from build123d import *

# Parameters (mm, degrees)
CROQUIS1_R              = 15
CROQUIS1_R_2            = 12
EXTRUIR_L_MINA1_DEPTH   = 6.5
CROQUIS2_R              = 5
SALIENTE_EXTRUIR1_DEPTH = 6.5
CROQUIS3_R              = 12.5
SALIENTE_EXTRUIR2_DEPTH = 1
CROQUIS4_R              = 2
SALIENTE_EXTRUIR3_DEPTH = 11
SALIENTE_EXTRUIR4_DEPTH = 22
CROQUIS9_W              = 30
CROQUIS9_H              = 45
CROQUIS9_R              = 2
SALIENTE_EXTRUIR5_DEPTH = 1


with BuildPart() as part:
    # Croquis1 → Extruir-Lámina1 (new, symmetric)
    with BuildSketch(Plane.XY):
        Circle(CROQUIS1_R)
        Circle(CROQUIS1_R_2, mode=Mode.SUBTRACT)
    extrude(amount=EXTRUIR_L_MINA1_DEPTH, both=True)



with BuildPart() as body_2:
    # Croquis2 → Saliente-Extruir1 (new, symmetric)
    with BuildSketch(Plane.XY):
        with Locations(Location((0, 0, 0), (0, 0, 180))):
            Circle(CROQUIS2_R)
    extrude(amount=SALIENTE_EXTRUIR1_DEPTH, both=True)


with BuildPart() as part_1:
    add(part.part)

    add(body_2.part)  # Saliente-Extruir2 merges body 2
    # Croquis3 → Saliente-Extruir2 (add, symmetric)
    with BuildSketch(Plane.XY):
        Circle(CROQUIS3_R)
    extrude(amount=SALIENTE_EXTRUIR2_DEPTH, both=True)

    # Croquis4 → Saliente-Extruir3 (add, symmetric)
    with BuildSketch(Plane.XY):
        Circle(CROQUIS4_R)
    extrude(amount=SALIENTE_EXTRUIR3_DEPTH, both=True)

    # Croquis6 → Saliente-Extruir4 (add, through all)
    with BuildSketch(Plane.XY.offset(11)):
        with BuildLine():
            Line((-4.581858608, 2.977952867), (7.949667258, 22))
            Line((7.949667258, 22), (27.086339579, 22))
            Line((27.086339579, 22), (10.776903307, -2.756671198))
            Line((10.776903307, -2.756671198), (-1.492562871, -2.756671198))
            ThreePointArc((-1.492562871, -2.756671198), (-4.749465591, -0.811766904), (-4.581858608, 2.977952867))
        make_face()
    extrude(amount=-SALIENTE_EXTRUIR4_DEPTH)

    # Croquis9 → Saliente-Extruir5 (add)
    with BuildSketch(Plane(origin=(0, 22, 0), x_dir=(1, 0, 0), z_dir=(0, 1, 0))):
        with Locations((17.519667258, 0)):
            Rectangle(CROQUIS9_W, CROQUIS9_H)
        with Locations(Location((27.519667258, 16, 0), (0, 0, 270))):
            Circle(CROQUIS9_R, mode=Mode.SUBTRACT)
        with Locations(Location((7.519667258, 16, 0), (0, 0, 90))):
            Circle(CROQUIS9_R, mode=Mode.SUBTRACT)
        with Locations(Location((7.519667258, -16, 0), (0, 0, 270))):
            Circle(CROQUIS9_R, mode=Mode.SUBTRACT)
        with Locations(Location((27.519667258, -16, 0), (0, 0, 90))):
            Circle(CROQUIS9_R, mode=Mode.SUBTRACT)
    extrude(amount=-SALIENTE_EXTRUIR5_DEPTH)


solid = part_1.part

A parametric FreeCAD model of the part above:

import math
import FreeCAD as App
import Part
import Sketcher


def add_polygon(sketch, points):
    """Adds a closed chain of lines whose ends are joined by coincident constraints."""
    first, n = sketch.GeometryCount, len(points)
    for a, b in zip(points, points[1:] + points[:1]):
        sketch.addGeometry(Part.LineSegment(App.Vector(*a, 0), App.Vector(*b, 0)), False)
    for i in range(n):
        sketch.addConstraint(Sketcher.Constraint("Coincident", first + i, 2, first + (i + 1) % n, 1))

doc = App.newDocument("Part")
body = doc.addObject("PartDesign::Body", "Body")

# Sketch on XY plane
sketch1 = body.newObject("Sketcher::SketchObject", "Sketch")
sketch1.AttachmentSupport = (doc.getObject("XY_Plane"), [""])
sketch1.MapMode = "FlatFace"
sketch1.addGeometry(Part.Circle(App.Vector(0, 0, 0), App.Vector(0, 0, 1), 15), False)
sketch1.addGeometry(Part.Circle(App.Vector(0, 0, 0), App.Vector(0, 0, 1), 12), False)
sketch1.addConstraint(Sketcher.Constraint("Coincident", 0, 3, -1, 1))
sketch1.addConstraint(Sketcher.Constraint("Coincident", 1, 3, -1, 1))
sketch1.addConstraint(Sketcher.Constraint("Diameter", 0, 30.0))
sketch1.addConstraint(Sketcher.Constraint("Diameter", 1, 24.0))
pad1 = body.newObject("PartDesign::Pad", "Pad")
pad1.Profile = sketch1
pad1.Length = 13
pad1.Midplane = True
body2 = doc.addObject("PartDesign::Body", "Body001")

# Sketch on XY plane
sketch2 = body2.newObject("Sketcher::SketchObject", "Sketch001")
sketch2.AttachmentSupport = (doc.getObject("XY_Plane001"), [""])
sketch2.MapMode = "FlatFace"
sketch2.addGeometry(Part.Circle(App.Vector(0, 0, 0), App.Vector(0, 0, 1), 5), False)
sketch2.addConstraint(Sketcher.Constraint("Coincident", 0, 3, -1, 1))
sketch2.addConstraint(Sketcher.Constraint("Diameter", 0, 10.0))
pad2 = body2.newObject("PartDesign::Pad", "Pad001")
pad2.Profile = sketch2
pad2.Length = 13
pad2.Midplane = True
body.AllowCompound = True
doc.recompute()

boolean = body.newObject("PartDesign::Boolean", "Boolean")
boolean.Type = "Fuse"
boolean.addObjects([body2])

# Sketch on XY plane
sketch3 = body.newObject("Sketcher::SketchObject", "Sketch002")
sketch3.AttachmentSupport = (doc.getObject("XY_Plane"), [""])
sketch3.MapMode = "FlatFace"
sketch3.addGeometry(Part.Circle(App.Vector(0, 0, 0), App.Vector(0, 0, 1), 12.5), False)
sketch3.addConstraint(Sketcher.Constraint("Coincident", 0, 3, -1, 1))
sketch3.addConstraint(Sketcher.Constraint("Diameter", 0, 25.0))
pad3 = body.newObject("PartDesign::Pad", "Pad002")
pad3.Profile = sketch3
pad3.Length = 2
pad3.Midplane = True

# Sketch on XY plane
sketch4 = body.newObject("Sketcher::SketchObject", "Sketch003")
sketch4.AttachmentSupport = (doc.getObject("XY_Plane"), [""])
sketch4.MapMode = "FlatFace"
sketch4.addGeometry(Part.Circle(App.Vector(0, 0, 0), App.Vector(0, 0, 1), 2), False)
sketch4.addConstraint(Sketcher.Constraint("Coincident", 0, 3, -1, 1))
sketch4.addConstraint(Sketcher.Constraint("Diameter", 0, 4.0))
pad4 = body.newObject("PartDesign::Pad", "Pad003")
pad4.Profile = sketch4
pad4.Length = 22
pad4.Midplane = True

# Sketch on XY plane
sketch5 = body.newObject("Sketcher::SketchObject", "Sketch004")
sketch5.AttachmentSupport = (doc.getObject("XY_Plane"), [""])
sketch5.MapMode = "FlatFace"
sketch5.AttachmentOffset = App.Placement(App.Vector(0, 0, 11), App.Rotation())
sketch5.addGeometry(Part.LineSegment(App.Vector(7.949667, 22, 0), App.Vector(-4.581859, 2.977953, 0)), False)
sketch5.addGeometry(Part.ArcOfCircle(Part.Circle(App.Vector(-1.492563, 0.942757, 0), App.Vector(0, 0, 1), 3.699428), math.radians(146.623526), math.radians(270)), False)
sketch5.addGeometry(Part.LineSegment(App.Vector(-1.492563, -2.756671, 0), App.Vector(10.776903, -2.756671, 0)), False)
sketch5.addGeometry(Part.LineSegment(App.Vector(10.776903, -2.756671, 0), App.Vector(27.08634, 22, 0)), False)
sketch5.addGeometry(Part.LineSegment(App.Vector(27.08634, 22, 0), App.Vector(7.949667, 22, 0)), False)
sketch5.addConstraint(Sketcher.Constraint("Tangent", 0, 2, 1, 1))
sketch5.addConstraint(Sketcher.Constraint("Tangent", 1, 2, 2, 1))
sketch5.addConstraint(Sketcher.Constraint("Coincident", 2, 2, 3, 1))
sketch5.addConstraint(Sketcher.Constraint("Coincident", 3, 2, 4, 1))
sketch5.addConstraint(Sketcher.Constraint("Coincident", 4, 2, 0, 1))
sketch5.addConstraint(Sketcher.Constraint("Horizontal", 2))
sketch5.addConstraint(Sketcher.Constraint("Horizontal", 4))
sketch5.addConstraint(Sketcher.Constraint("Parallel", 0, 3))
sketch5.addConstraint(Sketcher.Constraint("DistanceY", -1, 1, 3, 2, 22.0))
sketch5.addConstraint(Sketcher.Constraint("Radius", 1, 3.699428))
sketch5.addConstraint(Sketcher.Constraint("DistanceX", 0, 2, 3, 2, 31.668198))
sketch5.addConstraint(Sketcher.Constraint("Distance", 0, 22.778881))
sketch5.addConstraint(Sketcher.Constraint("DistanceX", 2, 1, 2, 2, 12.269466))
sketch5.addConstraint(Sketcher.Constraint("DistanceX", 0, 2, -1, 1, 4.581859))
pad5 = body.newObject("PartDesign::Pad", "Pad004")
pad5.Profile = sketch5
pad5.Length = 22
pad5.Reversed = True

# Sketch on XZ plane
sketch6 = body.newObject("Sketcher::SketchObject", "Sketch005")
sketch6.AttachmentSupport = (doc.getObject("XZ_Plane"), [""])
sketch6.MapMode = "FlatFace"
sketch6.AttachmentOffset = App.Placement(App.Vector(0, 0, -22), App.Rotation())
add_polygon(sketch6, [(2.519667, -22.5), (2.519667, 22.5), (32.519667, 22.5), (32.519667, -22.5)])  # lines 0-3
sketch6.addGeometry(Part.Circle(App.Vector(7.519667, 16, 0), App.Vector(0, 0, 1), 2), False)  # 4
sketch6.addGeometry(Part.Circle(App.Vector(27.519667, 16, 0), App.Vector(0, 0, 1), 2), False)  # 5
sketch6.addGeometry(Part.Circle(App.Vector(7.519667, -16, 0), App.Vector(0, 0, 1), 2), False)  # 6
sketch6.addGeometry(Part.Circle(App.Vector(27.519667, -16, 0), App.Vector(0, 0, 1), 2), False)  # 7
sketch6.addConstraint(Sketcher.Constraint("Vertical", 0))
sketch6.addConstraint(Sketcher.Constraint("Horizontal", 1))
sketch6.addConstraint(Sketcher.Constraint("Vertical", 2))
sketch6.addConstraint(Sketcher.Constraint("Horizontal", 3))
sketch6.addConstraint(Sketcher.Constraint("Equal", 4, 5))
sketch6.addConstraint(Sketcher.Constraint("Equal", 5, 6))
sketch6.addConstraint(Sketcher.Constraint("Equal", 6, 7))
sketch6.addConstraint(Sketcher.Constraint("Symmetric", 4, 3, 6, 3, -1))
sketch6.addConstraint(Sketcher.Constraint("Symmetric", 5, 3, 7, 3, -1))
sketch6.addConstraint(Sketcher.Constraint("Horizontal", 4, 3, 5, 3))
sketch6.addConstraint(Sketcher.Constraint("Diameter", 4, 4.0))
sketch6.addConstraint(Sketcher.Constraint("DistanceX", 1, 1, 1, 2, 30.0))
sketch6.addConstraint(Sketcher.Constraint("DistanceY", 0, 1, 0, 2, 45.0))
sketch6.addConstraint(Sketcher.Constraint("DistanceY", -1, 1, 4, 3, 16.0))
sketch6.addConstraint(Sketcher.Constraint("DistanceX", 4, 3, 5, 3, 20.0))
sketch6.addConstraint(Sketcher.Constraint("DistanceX", 0, 2, 4, 3, 5.0))
sketch6.addConstraint(Sketcher.Constraint("DistanceY", -1, 1, 0, 2, 22.5))
sketch6.addConstraint(Sketcher.Constraint("DistanceX", -1, 1, 4, 3, 7.519667))
pad6 = body.newObject("PartDesign::Pad", "Pad005")
pad6.Profile = sketch6
pad6.Length = 1

doc.recompute()
